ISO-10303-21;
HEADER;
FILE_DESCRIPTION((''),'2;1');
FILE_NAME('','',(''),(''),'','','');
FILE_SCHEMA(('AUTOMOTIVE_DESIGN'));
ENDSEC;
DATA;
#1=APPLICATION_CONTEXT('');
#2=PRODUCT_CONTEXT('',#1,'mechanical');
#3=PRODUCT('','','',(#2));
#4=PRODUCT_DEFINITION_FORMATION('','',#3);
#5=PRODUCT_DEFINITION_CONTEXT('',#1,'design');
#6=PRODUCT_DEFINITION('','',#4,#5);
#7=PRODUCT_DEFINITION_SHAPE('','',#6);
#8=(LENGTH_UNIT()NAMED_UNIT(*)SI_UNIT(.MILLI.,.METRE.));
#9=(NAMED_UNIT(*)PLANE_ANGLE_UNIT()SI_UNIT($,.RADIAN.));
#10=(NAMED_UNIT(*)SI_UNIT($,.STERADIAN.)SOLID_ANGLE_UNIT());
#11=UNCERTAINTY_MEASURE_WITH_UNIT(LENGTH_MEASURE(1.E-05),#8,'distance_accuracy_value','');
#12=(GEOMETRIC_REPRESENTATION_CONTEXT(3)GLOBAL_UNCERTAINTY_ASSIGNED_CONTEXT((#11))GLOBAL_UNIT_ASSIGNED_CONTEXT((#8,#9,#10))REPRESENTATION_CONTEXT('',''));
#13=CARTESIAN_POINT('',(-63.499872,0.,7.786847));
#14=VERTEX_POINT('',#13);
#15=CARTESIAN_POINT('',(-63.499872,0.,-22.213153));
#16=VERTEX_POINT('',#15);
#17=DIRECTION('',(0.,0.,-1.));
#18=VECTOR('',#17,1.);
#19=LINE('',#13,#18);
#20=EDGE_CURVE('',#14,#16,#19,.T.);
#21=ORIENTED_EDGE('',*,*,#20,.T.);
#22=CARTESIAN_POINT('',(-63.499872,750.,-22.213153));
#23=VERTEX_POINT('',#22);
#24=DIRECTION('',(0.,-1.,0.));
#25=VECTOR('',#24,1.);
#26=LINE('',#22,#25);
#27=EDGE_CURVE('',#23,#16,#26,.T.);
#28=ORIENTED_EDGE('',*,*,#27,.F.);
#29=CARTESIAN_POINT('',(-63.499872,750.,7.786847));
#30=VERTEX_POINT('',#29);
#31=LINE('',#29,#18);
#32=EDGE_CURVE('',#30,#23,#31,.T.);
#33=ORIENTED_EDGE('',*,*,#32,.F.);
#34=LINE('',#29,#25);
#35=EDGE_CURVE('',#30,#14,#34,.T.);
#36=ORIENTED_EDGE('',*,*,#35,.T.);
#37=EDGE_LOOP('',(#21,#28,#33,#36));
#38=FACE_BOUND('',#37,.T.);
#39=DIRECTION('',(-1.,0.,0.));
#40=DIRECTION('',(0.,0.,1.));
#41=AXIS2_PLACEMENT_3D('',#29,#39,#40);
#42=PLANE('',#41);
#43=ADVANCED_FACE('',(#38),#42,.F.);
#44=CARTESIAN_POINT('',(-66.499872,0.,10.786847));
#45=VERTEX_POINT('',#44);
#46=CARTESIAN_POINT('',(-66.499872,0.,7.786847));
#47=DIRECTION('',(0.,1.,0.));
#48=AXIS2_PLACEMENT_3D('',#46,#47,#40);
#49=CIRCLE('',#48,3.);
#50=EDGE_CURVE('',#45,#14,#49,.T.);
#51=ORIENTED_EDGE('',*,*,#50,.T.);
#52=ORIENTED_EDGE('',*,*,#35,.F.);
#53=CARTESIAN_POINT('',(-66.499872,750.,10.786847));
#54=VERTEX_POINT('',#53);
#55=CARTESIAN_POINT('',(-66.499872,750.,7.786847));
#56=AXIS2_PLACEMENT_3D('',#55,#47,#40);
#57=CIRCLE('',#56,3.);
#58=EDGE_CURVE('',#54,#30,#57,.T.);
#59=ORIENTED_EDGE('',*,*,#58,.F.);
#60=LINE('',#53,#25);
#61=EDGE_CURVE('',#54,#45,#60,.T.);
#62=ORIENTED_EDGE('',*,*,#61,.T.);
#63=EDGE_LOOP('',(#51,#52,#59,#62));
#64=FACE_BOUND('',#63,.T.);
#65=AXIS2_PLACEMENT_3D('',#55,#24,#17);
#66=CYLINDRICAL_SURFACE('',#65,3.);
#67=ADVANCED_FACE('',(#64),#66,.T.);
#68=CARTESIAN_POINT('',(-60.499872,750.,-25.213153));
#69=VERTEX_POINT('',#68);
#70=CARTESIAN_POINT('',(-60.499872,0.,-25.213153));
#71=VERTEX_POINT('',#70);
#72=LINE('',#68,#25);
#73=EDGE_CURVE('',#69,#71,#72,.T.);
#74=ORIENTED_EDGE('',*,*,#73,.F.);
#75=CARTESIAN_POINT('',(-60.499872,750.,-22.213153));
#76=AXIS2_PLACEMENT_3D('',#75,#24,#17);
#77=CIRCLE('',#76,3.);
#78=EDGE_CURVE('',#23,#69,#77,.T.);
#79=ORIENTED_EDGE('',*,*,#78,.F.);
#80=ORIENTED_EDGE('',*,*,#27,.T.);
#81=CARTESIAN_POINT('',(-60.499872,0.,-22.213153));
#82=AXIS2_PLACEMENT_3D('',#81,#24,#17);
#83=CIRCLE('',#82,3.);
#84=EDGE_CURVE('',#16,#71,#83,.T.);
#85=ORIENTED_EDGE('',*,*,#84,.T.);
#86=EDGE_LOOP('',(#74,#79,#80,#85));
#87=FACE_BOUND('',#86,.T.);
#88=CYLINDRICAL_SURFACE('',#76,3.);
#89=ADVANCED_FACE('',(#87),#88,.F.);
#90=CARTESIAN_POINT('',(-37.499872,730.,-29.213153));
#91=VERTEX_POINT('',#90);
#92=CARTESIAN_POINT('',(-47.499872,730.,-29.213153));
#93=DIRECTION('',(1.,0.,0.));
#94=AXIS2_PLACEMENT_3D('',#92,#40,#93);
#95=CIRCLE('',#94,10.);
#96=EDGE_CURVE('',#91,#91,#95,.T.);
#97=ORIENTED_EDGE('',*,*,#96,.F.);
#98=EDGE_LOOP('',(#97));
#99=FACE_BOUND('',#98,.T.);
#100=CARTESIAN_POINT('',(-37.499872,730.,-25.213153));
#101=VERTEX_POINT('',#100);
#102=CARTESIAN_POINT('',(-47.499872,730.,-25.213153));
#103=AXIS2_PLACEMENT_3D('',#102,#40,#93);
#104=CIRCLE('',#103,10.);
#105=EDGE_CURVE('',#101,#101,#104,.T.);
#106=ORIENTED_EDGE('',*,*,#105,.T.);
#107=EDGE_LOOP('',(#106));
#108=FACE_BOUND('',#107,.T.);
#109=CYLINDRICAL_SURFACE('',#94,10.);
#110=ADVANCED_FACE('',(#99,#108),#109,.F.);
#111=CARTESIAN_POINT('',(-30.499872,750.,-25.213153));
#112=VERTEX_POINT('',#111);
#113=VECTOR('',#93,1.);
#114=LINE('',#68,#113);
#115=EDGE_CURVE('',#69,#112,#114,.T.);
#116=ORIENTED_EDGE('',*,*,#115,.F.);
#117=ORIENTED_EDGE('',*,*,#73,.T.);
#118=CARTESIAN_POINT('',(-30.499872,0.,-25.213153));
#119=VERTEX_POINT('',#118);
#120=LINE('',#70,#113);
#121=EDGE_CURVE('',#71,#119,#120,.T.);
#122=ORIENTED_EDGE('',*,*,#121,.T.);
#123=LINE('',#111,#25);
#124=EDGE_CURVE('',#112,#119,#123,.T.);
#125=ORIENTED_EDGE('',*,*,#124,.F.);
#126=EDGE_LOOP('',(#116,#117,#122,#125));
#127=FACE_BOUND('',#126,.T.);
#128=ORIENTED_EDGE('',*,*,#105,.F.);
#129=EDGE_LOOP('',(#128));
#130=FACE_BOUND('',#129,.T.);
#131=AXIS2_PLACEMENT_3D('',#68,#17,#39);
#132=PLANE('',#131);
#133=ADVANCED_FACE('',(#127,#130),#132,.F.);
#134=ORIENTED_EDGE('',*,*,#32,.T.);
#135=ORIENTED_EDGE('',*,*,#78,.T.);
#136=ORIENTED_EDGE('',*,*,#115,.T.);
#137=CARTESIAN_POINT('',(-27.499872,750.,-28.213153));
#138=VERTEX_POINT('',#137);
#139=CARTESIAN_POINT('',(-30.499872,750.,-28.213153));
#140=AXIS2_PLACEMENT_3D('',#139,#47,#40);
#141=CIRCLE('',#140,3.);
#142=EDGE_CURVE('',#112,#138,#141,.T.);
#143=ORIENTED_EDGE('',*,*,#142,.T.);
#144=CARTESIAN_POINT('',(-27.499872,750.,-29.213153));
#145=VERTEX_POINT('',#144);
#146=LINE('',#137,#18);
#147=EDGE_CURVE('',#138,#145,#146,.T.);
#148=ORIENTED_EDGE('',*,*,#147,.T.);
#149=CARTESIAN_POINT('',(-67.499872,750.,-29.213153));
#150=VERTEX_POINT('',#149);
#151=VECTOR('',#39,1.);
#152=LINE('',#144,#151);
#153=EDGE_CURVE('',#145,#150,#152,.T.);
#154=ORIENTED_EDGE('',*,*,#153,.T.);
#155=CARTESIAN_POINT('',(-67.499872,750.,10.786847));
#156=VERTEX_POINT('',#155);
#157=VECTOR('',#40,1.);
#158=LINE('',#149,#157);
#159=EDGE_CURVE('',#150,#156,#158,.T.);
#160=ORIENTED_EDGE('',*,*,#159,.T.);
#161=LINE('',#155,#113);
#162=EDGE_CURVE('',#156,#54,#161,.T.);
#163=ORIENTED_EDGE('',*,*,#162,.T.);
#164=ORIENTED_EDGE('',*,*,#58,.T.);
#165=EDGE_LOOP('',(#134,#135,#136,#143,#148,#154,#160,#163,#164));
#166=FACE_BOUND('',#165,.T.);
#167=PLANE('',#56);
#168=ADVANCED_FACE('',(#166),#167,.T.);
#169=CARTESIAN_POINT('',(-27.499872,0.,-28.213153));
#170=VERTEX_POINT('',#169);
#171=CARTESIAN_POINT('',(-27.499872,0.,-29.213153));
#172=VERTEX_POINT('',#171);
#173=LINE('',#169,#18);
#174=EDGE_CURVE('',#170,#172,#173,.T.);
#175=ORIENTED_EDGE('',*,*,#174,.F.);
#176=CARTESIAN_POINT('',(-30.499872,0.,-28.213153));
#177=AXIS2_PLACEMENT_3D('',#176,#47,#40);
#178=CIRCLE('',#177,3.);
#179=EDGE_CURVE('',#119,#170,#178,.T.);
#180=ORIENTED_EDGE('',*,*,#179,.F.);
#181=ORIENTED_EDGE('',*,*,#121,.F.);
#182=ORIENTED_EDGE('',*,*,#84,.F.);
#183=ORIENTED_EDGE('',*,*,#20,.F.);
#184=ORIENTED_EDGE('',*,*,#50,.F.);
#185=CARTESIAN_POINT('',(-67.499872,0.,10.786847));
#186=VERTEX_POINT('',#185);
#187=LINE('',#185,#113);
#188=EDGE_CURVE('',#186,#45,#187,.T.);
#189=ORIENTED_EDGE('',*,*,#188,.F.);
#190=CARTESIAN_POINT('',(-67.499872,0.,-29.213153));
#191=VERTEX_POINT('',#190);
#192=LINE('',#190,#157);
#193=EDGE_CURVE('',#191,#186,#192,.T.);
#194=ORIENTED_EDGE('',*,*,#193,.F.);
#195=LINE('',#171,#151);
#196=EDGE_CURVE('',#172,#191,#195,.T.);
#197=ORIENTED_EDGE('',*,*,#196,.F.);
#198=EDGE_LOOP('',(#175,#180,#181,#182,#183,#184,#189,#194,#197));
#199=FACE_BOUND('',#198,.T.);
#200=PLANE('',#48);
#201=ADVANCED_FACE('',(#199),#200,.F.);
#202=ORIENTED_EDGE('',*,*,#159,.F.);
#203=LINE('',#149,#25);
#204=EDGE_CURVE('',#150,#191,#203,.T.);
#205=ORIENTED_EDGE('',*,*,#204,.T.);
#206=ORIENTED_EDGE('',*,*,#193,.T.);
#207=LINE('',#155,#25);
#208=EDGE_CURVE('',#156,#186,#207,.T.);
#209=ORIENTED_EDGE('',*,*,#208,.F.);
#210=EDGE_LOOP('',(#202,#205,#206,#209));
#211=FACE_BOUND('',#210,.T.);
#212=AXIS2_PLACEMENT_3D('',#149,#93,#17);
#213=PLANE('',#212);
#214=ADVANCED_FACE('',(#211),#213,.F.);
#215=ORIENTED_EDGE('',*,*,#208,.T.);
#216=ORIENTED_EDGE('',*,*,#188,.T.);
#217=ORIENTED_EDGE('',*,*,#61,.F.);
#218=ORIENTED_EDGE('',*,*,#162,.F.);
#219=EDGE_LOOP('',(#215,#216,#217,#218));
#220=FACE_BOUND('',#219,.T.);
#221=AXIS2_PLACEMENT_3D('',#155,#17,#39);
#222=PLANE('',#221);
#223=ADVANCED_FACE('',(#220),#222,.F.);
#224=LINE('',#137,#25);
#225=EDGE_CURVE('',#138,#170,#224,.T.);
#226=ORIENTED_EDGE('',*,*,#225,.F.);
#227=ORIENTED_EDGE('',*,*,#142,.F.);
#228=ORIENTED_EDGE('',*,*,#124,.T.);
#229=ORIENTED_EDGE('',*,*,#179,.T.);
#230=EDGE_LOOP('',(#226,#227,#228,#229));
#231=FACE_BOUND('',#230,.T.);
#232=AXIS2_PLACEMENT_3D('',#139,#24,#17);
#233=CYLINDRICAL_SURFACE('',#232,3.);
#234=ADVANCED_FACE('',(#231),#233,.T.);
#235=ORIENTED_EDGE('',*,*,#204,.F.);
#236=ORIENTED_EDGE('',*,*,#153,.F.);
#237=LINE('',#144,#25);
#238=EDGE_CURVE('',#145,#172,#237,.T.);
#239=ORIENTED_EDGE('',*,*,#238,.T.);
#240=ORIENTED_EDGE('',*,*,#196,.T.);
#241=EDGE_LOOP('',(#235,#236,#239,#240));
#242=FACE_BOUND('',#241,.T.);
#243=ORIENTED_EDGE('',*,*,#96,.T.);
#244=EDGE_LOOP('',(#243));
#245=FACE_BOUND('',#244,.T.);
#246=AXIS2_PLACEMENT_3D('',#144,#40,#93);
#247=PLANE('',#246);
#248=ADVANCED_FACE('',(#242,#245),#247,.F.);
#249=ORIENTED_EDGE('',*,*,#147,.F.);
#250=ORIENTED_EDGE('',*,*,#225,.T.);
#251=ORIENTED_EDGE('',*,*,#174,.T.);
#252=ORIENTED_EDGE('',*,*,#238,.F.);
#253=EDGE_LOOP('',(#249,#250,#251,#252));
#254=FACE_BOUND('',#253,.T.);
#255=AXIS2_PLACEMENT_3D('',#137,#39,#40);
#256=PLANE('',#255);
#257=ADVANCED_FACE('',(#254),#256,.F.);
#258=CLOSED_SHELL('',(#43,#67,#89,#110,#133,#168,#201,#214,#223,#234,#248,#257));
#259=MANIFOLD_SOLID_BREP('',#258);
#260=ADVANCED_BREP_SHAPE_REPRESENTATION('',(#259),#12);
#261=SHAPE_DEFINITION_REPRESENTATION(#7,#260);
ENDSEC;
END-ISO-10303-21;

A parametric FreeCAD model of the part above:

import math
import FreeCAD as App
import Part
import Sketcher

V = App.Vector

doc = App.newDocument("Part")
body = doc.addObject("PartDesign::Body", "Body")

# Sketch on XZ plane
sketch1 = body.newObject("Sketcher::SketchObject", "Sketch")
sketch1.AttachmentSupport = (doc.getObject("XZ_Plane"), [""])
sketch1.MapMode = "FlatFace"
sketch1.addGeometry(Part.LineSegment(V(-27.5, -29.2, 0), V(-67.5, -29.2, 0)), False)
sketch1.addGeometry(Part.LineSegment(V(-67.5, -29.2, 0), V(-67.5, 10.8, 0)), False)
sketch1.addGeometry(Part.LineSegment(V(-67.5, 10.8, 0), V(-66.5, 10.8, 0)), False)
sketch1.addGeometry(Part.ArcOfCircle(Part.Circle(V(-66.5, 7.8, 0), V(0, 0, 1), 3), math.radians(0), math.radians(90)), False)
sketch1.addGeometry(Part.LineSegment(V(-63.5, 7.8, 0), V(-63.5, -22.2, 0)), False)
sketch1.addGeometry(Part.ArcOfCircle(Part.Circle(V(-60.5, -22.2, 0), V(0, 0, 1), 3), math.radians(180), math.radians(270)), False)
sketch1.addGeometry(Part.LineSegment(V(-60.5, -25.2, 0), V(-30.5, -25.2, 0)), False)
sketch1.addGeometry(Part.ArcOfCircle(Part.Circle(V(-30.5, -28.2, 0), V(0, 0, 1), 3), math.radians(0), math.radians(90)), False)
sketch1.addGeometry(Part.LineSegment(V(-27.5, -28.2, 0), V(-27.5, -29.2, 0)), False)
sketch1.addConstraint(Sketcher.Constraint("Coincident", 0, 2, 1, 1))
sketch1.addConstraint(Sketcher.Constraint("Coincident", 1, 2, 2, 1))
sketch1.addConstraint(Sketcher.Constraint("Tangent", 2, 2, 3, 2))
sketch1.addConstraint(Sketcher.Constraint("Tangent", 3, 1, 4, 1))
sketch1.addConstraint(Sketcher.Constraint("Tangent", 4, 2, 5, 1))
sketch1.addConstraint(Sketcher.Constraint("Tangent", 5, 2, 6, 1))
sketch1.addConstraint(Sketcher.Constraint("Tangent", 6, 2, 7, 2))
sketch1.addConstraint(Sketcher.Constraint("Tangent", 7, 1, 8, 1))
sketch1.addConstraint(Sketcher.Constraint("Coincident", 8, 2, 0, 1))
sketch1.addConstraint(Sketcher.Constraint("Horizontal", 0))
sketch1.addConstraint(Sketcher.Constraint("Vertical", 1))
sketch1.addConstraint(Sketcher.Constraint("Horizontal", 2))
sketch1.addConstraint(Sketcher.Constraint("Vertical", 4))
sketch1.addConstraint(Sketcher.Constraint("Horizontal", 6))
sketch1.addConstraint(Sketcher.Constraint("Vertical", 8))
sketch1.addConstraint(Sketcher.Constraint("Equal", 3, 5))
sketch1.addConstraint(Sketcher.Constraint("Equal", 5, 7))
sketch1.addConstraint(Sketcher.Constraint("Equal", 0, 1))
sketch1.addConstraint(Sketcher.Constraint("Equal", 6, 4))
sketch1.addConstraint(Sketcher.Constraint("Radius", 3, 3.0))
sketch1.addConstraint(Sketcher.Constraint("DistanceX", 0, 2, 0, 1, 40.0))
sketch1.addConstraint(Sketcher.Constraint("DistanceX", 2, 1, 2, 2, 1.0))
sketch1.addConstraint(Sketcher.Constraint("DistanceX", 3, 3, -1, 1, 66.499872))
sketch1.addConstraint(Sketcher.Constraint("DistanceY", -1, 1, 3, 3, 7.786847))
pad1 = body.newObject("PartDesign::Pad", "Pad")
pad1.Profile = sketch1
pad1.Length = 750
pad1.Reversed = True

# Sketch on XY plane
sketch2 = body.newObject("Sketcher::SketchObject", "Sketch001")
sketch2.AttachmentSupport = (doc.getObject("XY_Plane"), [""])
sketch2.MapMode = "FlatFace"
sketch2.AttachmentOffset = App.Placement(V(0, 0, -25.213153), App.Rotation())
sketch2.addGeometry(Part.Circle(V(-47, 730, 0), V(0, 0, 1), 10), False)
sketch2.addConstraint(Sketcher.Constraint("Diameter", 0, 20.0))
sketch2.addConstraint(Sketcher.Constraint("DistanceY", -1, 1, 0, 3, 730.0))
sketch2.addConstraint(Sketcher.Constraint("DistanceX", 0, 3, -1, 1, 47.499872))
pocket1 = body.newObject("PartDesign::Pocket", "Pocket")
pocket1.Profile = sketch2
pocket1.Type = "ThroughAll"

doc.recompute()
